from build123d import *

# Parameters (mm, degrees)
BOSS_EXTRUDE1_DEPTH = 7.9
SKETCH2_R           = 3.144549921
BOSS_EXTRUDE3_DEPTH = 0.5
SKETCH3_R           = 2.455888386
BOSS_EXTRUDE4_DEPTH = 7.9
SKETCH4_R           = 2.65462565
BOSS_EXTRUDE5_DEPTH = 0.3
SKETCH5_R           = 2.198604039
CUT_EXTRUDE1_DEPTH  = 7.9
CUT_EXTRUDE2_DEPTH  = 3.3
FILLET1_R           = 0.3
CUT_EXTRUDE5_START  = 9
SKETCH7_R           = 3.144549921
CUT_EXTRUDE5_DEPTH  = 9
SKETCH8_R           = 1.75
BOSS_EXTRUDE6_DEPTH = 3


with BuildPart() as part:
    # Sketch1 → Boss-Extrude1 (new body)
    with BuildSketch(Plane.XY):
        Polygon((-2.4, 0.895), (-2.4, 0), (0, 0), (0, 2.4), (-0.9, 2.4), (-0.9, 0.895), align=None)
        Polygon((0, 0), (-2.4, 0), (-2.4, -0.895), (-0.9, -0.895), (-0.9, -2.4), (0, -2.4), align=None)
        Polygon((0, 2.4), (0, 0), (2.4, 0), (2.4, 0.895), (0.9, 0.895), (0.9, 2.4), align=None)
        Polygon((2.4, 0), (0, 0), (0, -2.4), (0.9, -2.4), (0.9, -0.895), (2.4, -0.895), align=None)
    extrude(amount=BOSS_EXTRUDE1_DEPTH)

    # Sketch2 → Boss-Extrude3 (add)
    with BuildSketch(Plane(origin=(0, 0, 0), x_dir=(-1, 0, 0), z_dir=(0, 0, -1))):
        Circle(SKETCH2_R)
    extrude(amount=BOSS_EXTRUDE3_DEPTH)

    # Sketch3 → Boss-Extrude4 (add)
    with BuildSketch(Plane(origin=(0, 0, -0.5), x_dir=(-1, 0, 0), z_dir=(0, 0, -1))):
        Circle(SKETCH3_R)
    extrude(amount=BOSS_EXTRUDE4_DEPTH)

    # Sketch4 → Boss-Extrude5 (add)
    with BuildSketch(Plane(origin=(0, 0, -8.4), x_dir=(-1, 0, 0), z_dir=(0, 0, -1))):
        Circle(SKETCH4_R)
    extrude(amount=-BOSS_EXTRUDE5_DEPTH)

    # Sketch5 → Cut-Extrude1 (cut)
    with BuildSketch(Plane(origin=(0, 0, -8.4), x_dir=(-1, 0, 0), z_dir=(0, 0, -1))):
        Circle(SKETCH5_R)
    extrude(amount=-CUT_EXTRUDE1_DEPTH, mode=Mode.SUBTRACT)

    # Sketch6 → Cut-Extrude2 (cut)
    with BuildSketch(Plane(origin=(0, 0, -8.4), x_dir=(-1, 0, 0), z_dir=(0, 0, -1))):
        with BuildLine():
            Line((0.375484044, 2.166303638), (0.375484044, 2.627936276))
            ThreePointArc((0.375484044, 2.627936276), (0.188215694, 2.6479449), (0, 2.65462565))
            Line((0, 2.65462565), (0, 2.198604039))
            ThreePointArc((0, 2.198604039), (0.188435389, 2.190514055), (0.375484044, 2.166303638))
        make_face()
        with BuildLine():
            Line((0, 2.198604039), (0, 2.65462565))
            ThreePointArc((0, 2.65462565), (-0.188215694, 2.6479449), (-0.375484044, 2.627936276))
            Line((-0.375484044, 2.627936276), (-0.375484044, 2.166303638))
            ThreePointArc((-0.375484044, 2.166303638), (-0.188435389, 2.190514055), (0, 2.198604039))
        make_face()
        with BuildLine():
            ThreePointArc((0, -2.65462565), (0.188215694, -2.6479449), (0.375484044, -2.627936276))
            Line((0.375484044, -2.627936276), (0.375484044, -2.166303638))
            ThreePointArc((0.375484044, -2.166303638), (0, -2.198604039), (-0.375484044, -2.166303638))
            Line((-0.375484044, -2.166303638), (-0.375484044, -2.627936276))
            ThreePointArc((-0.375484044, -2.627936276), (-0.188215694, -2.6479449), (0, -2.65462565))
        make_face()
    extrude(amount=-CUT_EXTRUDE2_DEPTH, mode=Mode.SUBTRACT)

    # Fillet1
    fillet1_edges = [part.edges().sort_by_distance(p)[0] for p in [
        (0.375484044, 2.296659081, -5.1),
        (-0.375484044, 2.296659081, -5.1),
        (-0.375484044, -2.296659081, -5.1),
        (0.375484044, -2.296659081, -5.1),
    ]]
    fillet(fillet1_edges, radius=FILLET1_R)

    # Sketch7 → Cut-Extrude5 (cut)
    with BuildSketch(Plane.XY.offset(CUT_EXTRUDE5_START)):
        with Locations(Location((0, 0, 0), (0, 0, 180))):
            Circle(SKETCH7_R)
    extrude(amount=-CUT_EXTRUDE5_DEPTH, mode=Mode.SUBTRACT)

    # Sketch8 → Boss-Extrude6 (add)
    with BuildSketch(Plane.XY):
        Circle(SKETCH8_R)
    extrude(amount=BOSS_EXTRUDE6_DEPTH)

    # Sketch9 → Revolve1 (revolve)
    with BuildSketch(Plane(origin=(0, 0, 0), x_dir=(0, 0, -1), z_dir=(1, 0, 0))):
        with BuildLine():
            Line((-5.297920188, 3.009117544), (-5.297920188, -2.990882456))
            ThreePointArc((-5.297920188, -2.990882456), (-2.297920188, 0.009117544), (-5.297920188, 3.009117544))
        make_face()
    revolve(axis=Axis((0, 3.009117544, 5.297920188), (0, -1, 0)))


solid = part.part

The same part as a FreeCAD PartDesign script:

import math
import FreeCAD as App
import Part
import Sketcher
from FreeCAD import Vector
Q = App.Units.Quantity


def edges_at(feature, points):
    """Names of the edges that pass closest to the given points."""
    edges = feature.Shape.Edges
    near = lambda p: min(range(len(edges)), key=lambda i: edges[i].distToShape(Part.Vertex(*p))[0])
    return sorted({f"Edge{near(p) + 1}" for p in points})


def add_polygon(sketch, points):
    """Adds a closed chain of lines whose ends are joined by coincident constraints."""
    first, n = sketch.GeometryCount, len(points)
    for a, b in zip(points, points[1:] + points[:1]):
        sketch.addGeometry(Part.LineSegment(App.Vector(*a, 0), App.Vector(*b, 0)), False)
    for i in range(n):
        sketch.addConstraint(Sketcher.Constraint("Coincident", first + i, 2, first + (i + 1) % n, 1))

doc = App.newDocument("Part")
body = doc.addObject("PartDesign::Body", "Body")

sketch1 = doc.addObject("Sketcher::SketchObject", "Sketch")
body.addObject(sketch1)
sketch1.AttachmentSupport = (doc.XY_Plane, [""])
sketch1.MapMode = "FlatFace"
add_polygon(sketch1, [(-2.4, 0.9), (-2.4, -0.9), (-0.9, -0.9), (-0.9, -2.4), (0.9, -2.4), (0.9, -0.9), (2.4, -0.9), (2.4, 0.9), (0.9, 0.9), (0.9, 2.4), (-0.9, 2.4), (-0.9, 0.9)])
sketch1.addConstraint([
    Sketcher.Constraint("Vertical", 0),
    Sketcher.Constraint("Horizontal", 1),
    Sketcher.Constraint("Vertical", 2),
    Sketcher.Constraint("Horizontal", 3),
    Sketcher.Constraint("Vertical", 4),
    Sketcher.Constraint("Horizontal", 5),
    Sketcher.Constraint("Vertical", 6),
    Sketcher.Constraint("Horizontal", 7),
    Sketcher.Constraint("Vertical", 8),
    Sketcher.Constraint("Horizontal", 9),
    Sketcher.Constraint("Vertical", 10),
    Sketcher.Constraint("Horizontal", 11),
    Sketcher.Constraint("Symmetric", 0, 2, 6, 2, -1, 1),
    Sketcher.Constraint("Symmetric", 2, 2, 8, 2, -1, 1),
    Sketcher.Constraint("Symmetric", 4, 2, 10, 2, -1, 1),
    Sketcher.Constraint("Symmetric", 1, 2, 4, 2, -2),
    Sketcher.Constraint("DistanceX", 1, 1, 1, 2, Q("1.5 mm")),
    Sketcher.Constraint("DistanceX", 3, 1, 3, 2, Q("1.8 mm")),
    Sketcher.Constraint("DistanceY", 0, 2, 0, 1, Q("1.79 mm")),
    Sketcher.Constraint("DistanceY", 2, 2, -1, 1, Q("2.4 mm")),
])
pad1 = doc.addObject("PartDesign::Pad", "Pad")
body.addObject(pad1)
pad1.Profile = sketch1
pad1.Length = 7.9

sketch2 = doc.addObject("Sketcher::SketchObject", "Sketch001")
body.addObject(sketch2)
sketch2.AttachmentSupport = (doc.XY_Plane, [""])
sketch2.MapMode = "FlatFace"
sketch2.addGeometry(Part.Circle(Vector(0, 0, 0), Vector(0, 0, 1), 3.1), False)
sketch2.addConstraint([
    Sketcher.Constraint("Coincident", 0, 3, -1, 1),
    Sketcher.Constraint("Diameter", 0, Q("6.2891 mm")),
])
pad2 = doc.addObject("PartDesign::Pad", "Pad001")
body.addObject(pad2)
pad2.Profile = sketch2
pad2.Length = 0.5
pad2.Reversed = True

sketch3 = doc.addObject("Sketcher::SketchObject", "Sketch002")
body.addObject(sketch3)
sketch3.AttachmentSupport = (doc.XY_Plane, [""])
sketch3.MapMode = "FlatFace"
sketch3.AttachmentOffset = App.Placement(Vector(0, 0, -0.5), App.Rotation())
sketch3.addGeometry(Part.Circle(Vector(0, 0, 0), Vector(0, 0, 1), 2.5), False)
sketch3.addConstraint([
    Sketcher.Constraint("Coincident", 0, 3, -1, 1),
    Sketcher.Constraint("Diameter", 0, Q("4.911777 mm")),
])
pad3 = doc.addObject("PartDesign::Pad", "Pad002")
body.addObject(pad3)
pad3.Profile = sketch3
pad3.Length = 7.9
pad3.Reversed = True

sketch4 = doc.addObject("Sketcher::SketchObject", "Sketch003")
body.addObject(sketch4)
sketch4.AttachmentSupport = (doc.XY_Plane, [""])
sketch4.MapMode = "FlatFace"
sketch4.AttachmentOffset = App.Placement(Vector(0, 0, -8.4), App.Rotation())
sketch4.addGeometry(Part.Circle(Vector(0, 0, 0), Vector(0, 0, 1), 2.7), False)
sketch4.addConstraint([
    Sketcher.Constraint("Coincident", 0, 3, -1, 1),
    Sketcher.Constraint("Diameter", 0, Q("5.309251 mm")),
])
pad4 = doc.addObject("PartDesign::Pad", "Pad003")
body.addObject(pad4)
pad4.Profile = sketch4
pad4.Length = 0.3

sketch5 = doc.addObject("Sketcher::SketchObject", "Sketch004")
body.addObject(sketch5)
sketch5.AttachmentSupport = (doc.XY_Plane, [""])
sketch5.MapMode = "FlatFace"
sketch5.AttachmentOffset = App.Placement(Vector(0, 0, -8.4), App.Rotation())
sketch5.addGeometry(Part.Circle(Vector(0, 0, 0), Vector(0, 0, 1), 2.2), False)
sketch5.addConstraint([
    Sketcher.Constraint("Coincident", 0, 3, -1, 1),
    Sketcher.Constraint("Diameter", 0, Q("4.397208 mm")),
])
pocket1 = doc.addObject("PartDesign::Pocket", "Pocket")
body.addObject(pocket1)
pocket1.Profile = sketch5
pocket1.Length = 7.9
pocket1.Reversed = True

sketch6 = doc.addObject("Sketcher::SketchObject", "Sketch005")
body.addObject(sketch6)
sketch6.AttachmentSupport = (doc.XY_Plane, [""])
sketch6.MapMode = "FlatFace"
sketch6.AttachmentOffset = App.Placement(Vector(0, 0, -8.4), App.Rotation())
sketch6.addGeometry([
    Part.LineSegment(Vector(-0.38, 2.17, 0), Vector(-0.38, 2.63, 0)),
    Part.ArcOfCircle(Part.Circle(Vector(0, 0, 0), Vector(0, 0, 1), 2.65), math.radians(90), math.radians(98.13)),
    Part.ArcOfCircle(Part.Circle(Vector(0, 0, 0), Vector(0, 0, 1), 2.65), math.radians(81.87), math.radians(90)),
    Part.LineSegment(Vector(0.38, 2.63, 0), Vector(0.38, 2.17, 0)),
    Part.ArcOfCircle(Part.Circle(Vector(0, 0, 0), Vector(0, 0, 1), 2.2), math.radians(80.17), math.radians(90)),
    Part.ArcOfCircle(Part.Circle(Vector(0, 0, 0), Vector(0, 0, 1), 2.2), math.radians(90), math.radians(99.83)),
    Part.ArcOfCircle(Part.Circle(Vector(0, 0, 0), Vector(0, 0, 1), 2.65), math.radians(-98.13), math.radians(-90)),
    Part.LineSegment(Vector(-0.38, -2.63, 0), Vector(-0.38, -2.17, 0)),
    Part.ArcOfCircle(Part.Circle(Vector(0, 0, 0), Vector(0, 0, 1), 2.2), math.radians(-99.83), math.radians(-80.17)),
    Part.LineSegment(Vector(0.38, -2.17, 0), Vector(0.38, -2.63, 0)),
    Part.ArcOfCircle(Part.Circle(Vector(0, 0, 0), Vector(0, 0, 1), 2.65), math.radians(-90), math.radians(-81.87)),
], False)
sketch6.addConstraint([
    Sketcher.Constraint("Coincident", 0, 2, 1, 2),
    Sketcher.Constraint("Tangent", 1, 1, 2, 2),
    Sketcher.Constraint("Coincident", 2, 1, 3, 1),
    Sketcher.Constraint("Coincident", 3, 2, 4, 1),
    Sketcher.Constraint("Tangent", 4, 2, 5, 1),
    Sketcher.Constraint("Coincident", 5, 2, 0, 1),
    Sketcher.Constraint("Coincident", 6, 1, 7, 1),
    Sketcher.Constraint("Coincident", 7, 2, 8, 1),
    Sketcher.Constraint("Coincident", 8, 2, 9, 1),
    Sketcher.Constraint("Coincident", 9, 2, 10, 2),
    Sketcher.Constraint("Tangent", 10, 1, 6, 2),
    Sketcher.Constraint("Vertical", 0),
    Sketcher.Constraint("Vertical", 3),
    Sketcher.Constraint("Vertical", 7),
    Sketcher.Constraint("Vertical", 9),
    Sketcher.Constraint("Coincident", 1, 3, -1, 1),
    Sketcher.Constraint("Coincident", 4, 3, -1, 1),
    Sketcher.Constraint("Coincident", 6, 3, -1, 1),
    Sketcher.Constraint("Coincident", 8, 3, -1, 1),
    Sketcher.Constraint("Equal", 1, 2),
    Sketcher.Constraint("Equal", 4, 5),
    Sketcher.Constraint("Equal", 2, 6),
    Sketcher.Constraint("Equal", 5, 8),
    Sketcher.Constraint("Equal", 6, 10),
    Sketcher.Constraint("PointOnObject", 1, 1, -2),
    Sketcher.Constraint("PointOnObject", 4, 2, -2),
    Sketcher.Constraint("PointOnObject", 10, 1, -2),
    Sketcher.Constraint("Horizontal", 0, 2, 2, 1),
    Sketcher.Constraint("Horizontal", 7, 2, 8, 2),
    Sketcher.Constraint("Vertical", 5, 2, 6, 1),
    Sketcher.Constraint("Radius", 1, Q("2.654626 mm")),
    Sketcher.Constraint("Radius", 4, Q("2.198604 mm")),
    Sketcher.Constraint("DistanceY", 3, 2, 4, 2, Q("0.0323 mm")),
])
pocket2 = doc.addObject("PartDesign::Pocket", "Pocket001")
body.addObject(pocket2)
pocket2.Profile = sketch6
pocket2.Length = 3.3
pocket2.Reversed = True
doc.recompute()

fillet = doc.addObject("PartDesign::Fillet", "Fillet")
body.addObject(fillet)
fillet.Base = (pocket2, edges_at(pocket2, [
    (0.375, 2.297, -5.1),
    (-0.375, 2.297, -5.1),
    (-0.375, -2.297, -5.1),
    (0.375, -2.297, -5.1),
]))
fillet.Radius = 0.3

sketch7 = doc.addObject("Sketcher::SketchObject", "Sketch006")
body.addObject(sketch7)
sketch7.AttachmentSupport = (doc.XY_Plane, [""])
sketch7.MapMode = "FlatFace"
sketch7.AttachmentOffset = App.Placement(Vector(0, 0, 9), App.Rotation())
sketch7.addGeometry(Part.Circle(Vector(0, 0, 0), Vector(0, 0, 1), 3.1), False)
sketch7.addConstraint([
    Sketcher.Constraint("Coincident", 0, 3, -1, 1),
    Sketcher.Constraint("Diameter", 0, Q("6.2891 mm")),
])
pocket3 = doc.addObject("PartDesign::Pocket", "Pocket002")
body.addObject(pocket3)
pocket3.Profile = sketch7
pocket3.Length = 9

sketch8 = doc.addObject("Sketcher::SketchObject", "Sketch007")
body.addObject(sketch8)
sketch8.AttachmentSupport = (doc.XY_Plane, [""])
sketch8.MapMode = "FlatFace"
sketch8.addGeometry(Part.Circle(Vector(0, 0, 0), Vector(0, 0, 1), 1.8), False)
sketch8.addConstraint([
    Sketcher.Constraint("Coincident", 0, 3, -1, 1),
    Sketcher.Constraint("Diameter", 0, Q("3.5 mm")),
])
pad5 = doc.addObject("PartDesign::Pad", "Pad004")
body.addObject(pad5)
pad5.Profile = sketch8
pad5.Length = 3

sketch9 = doc.addObject("Sketcher::SketchObject", "Sketch008")
body.addObject(sketch9)
sketch9.AttachmentSupport = (doc.YZ_Plane, [""])
sketch9.MapMode = "FlatFace"
sketch9.addGeometry([
    Part.LineSegment(Vector(3, 5.3, 0), Vector(-3, 5.3, 0)),
    Part.ArcOfCircle(Part.Circle(Vector(0, 5.3, 0), Vector(0, 0, 1), 3), math.radians(180), math.radians(360)),
], False)
sketch9.addGeometry(Part.LineSegment(Vector(3, 5.3, 0), Vector(-3, 5.3, 0)), True)
sketch9.addConstraint([
    Sketcher.Constraint("Coincident", 0, 1, 1, 2),
    Sketcher.Constraint("Coincident", 1, 1, 0, 2),
    Sketcher.Constraint("Horizontal", 0),
    Sketcher.Constraint("Horizontal", 2),
    Sketcher.Constraint("Coincident", 2, 1, 0, 1),
    Sketcher.Constraint("Horizontal", 1, 3, 0, 1),
    Sketcher.Constraint("Equal", 0, 2),
    Sketcher.Constraint("Radius", 1, Q("3 mm")),
    Sketcher.Constraint("DistanceY", -1, 1, 1, 3, Q("5.29792 mm")),
    Sketcher.Constraint("DistanceX", -1, 1, 1, 3, Q("0.009118 mm")),
])
revolution = doc.addObject("PartDesign::Revolution", "Revolution")
body.addObject(revolution)
revolution.Profile = sketch9
revolution.ReferenceAxis = (sketch9, ["Axis0"])
revolution.Angle = 360

doc.recompute()
